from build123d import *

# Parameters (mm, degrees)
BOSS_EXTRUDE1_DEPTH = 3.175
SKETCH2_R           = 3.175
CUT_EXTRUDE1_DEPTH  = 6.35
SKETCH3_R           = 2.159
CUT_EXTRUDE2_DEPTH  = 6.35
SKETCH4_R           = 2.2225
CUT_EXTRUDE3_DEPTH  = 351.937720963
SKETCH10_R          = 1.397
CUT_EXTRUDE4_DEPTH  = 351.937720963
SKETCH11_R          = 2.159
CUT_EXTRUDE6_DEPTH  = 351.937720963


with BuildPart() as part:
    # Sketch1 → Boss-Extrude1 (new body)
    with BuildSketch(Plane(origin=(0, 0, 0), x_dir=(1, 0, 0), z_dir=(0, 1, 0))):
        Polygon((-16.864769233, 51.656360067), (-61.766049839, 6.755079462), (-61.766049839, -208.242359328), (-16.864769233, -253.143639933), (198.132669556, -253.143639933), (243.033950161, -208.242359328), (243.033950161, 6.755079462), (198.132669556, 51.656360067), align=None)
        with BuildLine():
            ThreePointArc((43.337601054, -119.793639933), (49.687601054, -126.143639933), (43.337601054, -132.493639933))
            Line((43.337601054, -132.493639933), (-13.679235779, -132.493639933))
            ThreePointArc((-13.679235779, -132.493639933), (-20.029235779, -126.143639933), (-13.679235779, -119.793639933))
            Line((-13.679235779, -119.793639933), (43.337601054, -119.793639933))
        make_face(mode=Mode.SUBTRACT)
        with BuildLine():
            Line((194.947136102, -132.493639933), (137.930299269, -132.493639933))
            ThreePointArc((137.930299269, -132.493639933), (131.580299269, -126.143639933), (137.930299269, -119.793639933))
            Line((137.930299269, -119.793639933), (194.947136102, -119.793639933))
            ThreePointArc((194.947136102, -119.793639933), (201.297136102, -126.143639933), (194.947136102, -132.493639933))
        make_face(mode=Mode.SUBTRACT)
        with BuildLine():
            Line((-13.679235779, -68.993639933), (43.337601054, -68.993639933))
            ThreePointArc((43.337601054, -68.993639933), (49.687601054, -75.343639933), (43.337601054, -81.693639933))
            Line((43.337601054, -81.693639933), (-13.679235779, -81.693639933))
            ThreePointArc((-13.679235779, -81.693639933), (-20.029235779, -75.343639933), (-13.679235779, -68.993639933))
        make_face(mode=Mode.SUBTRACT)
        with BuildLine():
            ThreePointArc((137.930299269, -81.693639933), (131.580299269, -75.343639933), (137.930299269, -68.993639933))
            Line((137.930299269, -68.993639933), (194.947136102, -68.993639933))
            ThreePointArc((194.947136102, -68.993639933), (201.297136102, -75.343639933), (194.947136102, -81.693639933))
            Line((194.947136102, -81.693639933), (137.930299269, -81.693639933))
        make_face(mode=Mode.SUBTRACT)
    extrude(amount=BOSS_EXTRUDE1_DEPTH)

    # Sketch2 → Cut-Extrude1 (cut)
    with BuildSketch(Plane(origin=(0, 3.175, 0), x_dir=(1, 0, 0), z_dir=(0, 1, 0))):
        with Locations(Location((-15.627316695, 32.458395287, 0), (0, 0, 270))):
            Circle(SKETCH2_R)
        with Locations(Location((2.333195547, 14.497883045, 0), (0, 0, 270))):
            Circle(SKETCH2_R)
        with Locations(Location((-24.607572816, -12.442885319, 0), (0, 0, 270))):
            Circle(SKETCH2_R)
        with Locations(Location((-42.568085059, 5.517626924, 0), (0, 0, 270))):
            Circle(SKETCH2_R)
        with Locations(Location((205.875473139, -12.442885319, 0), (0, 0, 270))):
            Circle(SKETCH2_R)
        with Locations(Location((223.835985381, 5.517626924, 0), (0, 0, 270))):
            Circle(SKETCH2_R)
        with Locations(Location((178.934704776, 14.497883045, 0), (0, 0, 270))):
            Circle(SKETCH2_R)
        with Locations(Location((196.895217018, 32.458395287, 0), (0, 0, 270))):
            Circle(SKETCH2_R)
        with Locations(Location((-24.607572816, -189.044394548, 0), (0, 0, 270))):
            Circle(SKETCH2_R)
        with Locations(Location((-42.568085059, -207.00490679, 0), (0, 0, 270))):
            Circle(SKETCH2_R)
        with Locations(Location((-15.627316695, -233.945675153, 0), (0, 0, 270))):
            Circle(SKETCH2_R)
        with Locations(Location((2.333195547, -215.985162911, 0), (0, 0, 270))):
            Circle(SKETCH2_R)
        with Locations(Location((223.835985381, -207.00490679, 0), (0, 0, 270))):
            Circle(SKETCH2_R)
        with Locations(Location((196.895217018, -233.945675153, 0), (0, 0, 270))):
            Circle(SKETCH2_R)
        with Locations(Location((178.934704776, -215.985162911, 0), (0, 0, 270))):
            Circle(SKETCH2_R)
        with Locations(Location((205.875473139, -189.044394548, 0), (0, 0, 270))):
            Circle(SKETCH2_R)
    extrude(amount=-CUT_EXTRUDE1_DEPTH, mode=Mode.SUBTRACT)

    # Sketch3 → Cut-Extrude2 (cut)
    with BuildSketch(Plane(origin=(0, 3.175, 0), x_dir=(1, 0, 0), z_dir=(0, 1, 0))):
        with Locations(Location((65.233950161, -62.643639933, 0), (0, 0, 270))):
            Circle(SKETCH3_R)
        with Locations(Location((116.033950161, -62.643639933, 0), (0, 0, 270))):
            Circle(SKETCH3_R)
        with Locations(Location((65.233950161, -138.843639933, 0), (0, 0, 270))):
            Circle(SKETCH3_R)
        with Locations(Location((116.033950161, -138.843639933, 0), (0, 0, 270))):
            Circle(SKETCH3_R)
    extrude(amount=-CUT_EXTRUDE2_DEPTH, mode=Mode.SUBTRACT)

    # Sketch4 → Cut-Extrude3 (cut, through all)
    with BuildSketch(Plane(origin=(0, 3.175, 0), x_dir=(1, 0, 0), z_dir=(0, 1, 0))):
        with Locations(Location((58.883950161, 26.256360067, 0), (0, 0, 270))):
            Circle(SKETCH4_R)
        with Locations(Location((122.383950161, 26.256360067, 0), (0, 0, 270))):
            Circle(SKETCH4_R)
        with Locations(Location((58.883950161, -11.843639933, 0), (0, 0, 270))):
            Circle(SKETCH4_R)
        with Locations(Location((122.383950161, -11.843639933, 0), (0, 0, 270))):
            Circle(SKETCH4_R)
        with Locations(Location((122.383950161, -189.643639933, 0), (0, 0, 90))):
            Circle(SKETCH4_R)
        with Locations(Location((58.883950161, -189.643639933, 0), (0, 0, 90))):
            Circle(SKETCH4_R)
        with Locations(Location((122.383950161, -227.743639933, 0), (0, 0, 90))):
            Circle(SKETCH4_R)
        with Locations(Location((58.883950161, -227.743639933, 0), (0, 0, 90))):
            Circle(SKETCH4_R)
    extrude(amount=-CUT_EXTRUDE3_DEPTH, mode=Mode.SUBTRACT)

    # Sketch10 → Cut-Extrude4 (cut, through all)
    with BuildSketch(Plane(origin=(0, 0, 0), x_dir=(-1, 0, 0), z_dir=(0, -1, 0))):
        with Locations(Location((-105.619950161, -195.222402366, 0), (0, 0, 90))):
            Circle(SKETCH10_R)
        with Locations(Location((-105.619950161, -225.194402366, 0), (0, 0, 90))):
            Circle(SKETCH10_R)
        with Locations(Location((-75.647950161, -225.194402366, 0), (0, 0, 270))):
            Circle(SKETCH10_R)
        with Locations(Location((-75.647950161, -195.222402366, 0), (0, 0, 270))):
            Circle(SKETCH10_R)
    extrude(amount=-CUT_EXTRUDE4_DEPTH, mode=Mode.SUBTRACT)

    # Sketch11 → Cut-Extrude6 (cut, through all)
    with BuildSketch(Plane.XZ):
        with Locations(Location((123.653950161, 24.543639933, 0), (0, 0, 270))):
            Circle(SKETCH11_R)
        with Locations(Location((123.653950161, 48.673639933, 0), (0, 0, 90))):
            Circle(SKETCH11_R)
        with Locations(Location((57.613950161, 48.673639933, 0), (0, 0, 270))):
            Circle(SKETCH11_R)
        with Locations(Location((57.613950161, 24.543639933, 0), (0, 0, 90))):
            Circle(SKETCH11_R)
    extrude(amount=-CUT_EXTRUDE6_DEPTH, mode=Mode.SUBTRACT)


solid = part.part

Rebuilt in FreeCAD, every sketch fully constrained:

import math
import FreeCAD as App
import Part
import Sketcher
Q = App.Units.Quantity


def add_polygon(sketch, points):
    """Adds a closed chain of lines whose ends are joined by coincident constraints."""
    first, n = sketch.GeometryCount, len(points)
    for a, b in zip(points, points[1:] + points[:1]):
        sketch.addGeometry(Part.LineSegment(App.Vector(*a, 0), App.Vector(*b, 0)), False)
    for i in range(n):
        sketch.addConstraint(Sketcher.Constraint("Coincident", first + i, 2, first + (i + 1) % n, 1))

doc = App.newDocument("Part")
body = doc.addObject("PartDesign::Body", "Body")

sketch1 = body.newObject("Sketcher::SketchObject", "Sketch")
sketch1.AttachmentSupport = (doc.getObject("XZ_Plane"), [""])
sketch1.MapMode = "FlatFace"
add_polygon(sketch1, [(-17, -52), (-62, -7), (-62, 208), (-17, 253), (198, 253), (243, 208), (243, -7), (198, -52)])
sketch1.addGeometry(Part.LineSegment(App.Vector(-14, 120, 0), App.Vector(43, 120, 0)), False)
sketch1.addGeometry(Part.ArcOfCircle(Part.Circle(App.Vector(43, 126, 0), App.Vector(0, 0, 1), 6), math.radians(-90), math.radians(90)), False)
sketch1.addGeometry(Part.LineSegment(App.Vector(43, 132, 0), App.Vector(-14, 132, 0)), False)
sketch1.addGeometry(Part.ArcOfCircle(Part.Circle(App.Vector(-14, 126, 0), App.Vector(0, 0, 1), 6), math.radians(90), math.radians(270)), False)
sketch1.addGeometry(Part.ArcOfCircle(Part.Circle(App.Vector(195, 126, 0), App.Vector(0, 0, 1), 6), math.radians(-90), math.radians(90)), False)
sketch1.addGeometry(Part.LineSegment(App.Vector(195, 132, 0), App.Vector(138, 132, 0)), False)
sketch1.addGeometry(Part.ArcOfCircle(Part.Circle(App.Vector(138, 126, 0), App.Vector(0, 0, 1), 6), math.radians(90), math.radians(270)), False)
sketch1.addGeometry(Part.LineSegment(App.Vector(138, 120, 0), App.Vector(195, 120, 0)), False)
sketch1.addGeometry(Part.ArcOfCircle(Part.Circle(App.Vector(-14, 75, 0), App.Vector(0, 0, 1), 6), math.radians(90), math.radians(270)), False)
sketch1.addGeometry(Part.LineSegment(App.Vector(-14, 69, 0), App.Vector(43, 69, 0)), False)
sketch1.addGeometry(Part.ArcOfCircle(Part.Circle(App.Vector(43, 75, 0), App.Vector(0, 0, 1), 6), math.radians(-90), math.radians(90)), False)
sketch1.addGeometry(Part.LineSegment(App.Vector(43, 82, 0), App.Vector(-14, 82, 0)), False)
sketch1.addGeometry(Part.LineSegment(App.Vector(195, 82, 0), App.Vector(138, 82, 0)), False)
sketch1.addGeometry(Part.ArcOfCircle(Part.Circle(App.Vector(138, 75, 0), App.Vector(0, 0, 1), 6), math.radians(90), math.radians(270)), False)
sketch1.addGeometry(Part.LineSegment(App.Vector(138, 69, 0), App.Vector(195, 69, 0)), False)
sketch1.addGeometry(Part.ArcOfCircle(Part.Circle(App.Vector(195, 75, 0), App.Vector(0, 0, 1), 6), math.radians(-90), math.radians(90)), False)
sketch1.addConstraint(Sketcher.Constraint("Tangent", 8, 2, 9, 1))
sketch1.addConstraint(Sketcher.Constraint("Tangent", 9, 2, 10, 1))
sketch1.addConstraint(Sketcher.Constraint("Tangent", 10, 2, 11, 1))
sketch1.addConstraint(Sketcher.Constraint("Tangent", 11, 2, 8, 1))
sketch1.addConstraint(Sketcher.Constraint("Tangent", 12, 2, 13, 1))
sketch1.addConstraint(Sketcher.Constraint("Tangent", 13, 2, 14, 1))
sketch1.addConstraint(Sketcher.Constraint("Tangent", 14, 2, 15, 1))
sketch1.addConstraint(Sketcher.Constraint("Tangent", 15, 2, 12, 1))
sketch1.addConstraint(Sketcher.Constraint("Tangent", 16, 2, 17, 1))
sketch1.addConstraint(Sketcher.Constraint("Tangent", 17, 2, 18, 1))
sketch1.addConstraint(Sketcher.Constraint("Tangent", 18, 2, 19, 1))
sketch1.addConstraint(Sketcher.Constraint("Tangent", 19, 2, 16, 1))
sketch1.addConstraint(Sketcher.Constraint("Tangent", 20, 2, 21, 1))
sketch1.addConstraint(Sketcher.Constraint("Tangent", 21, 2, 22, 1))
sketch1.addConstraint(Sketcher.Constraint("Tangent", 22, 2, 23, 1))
sketch1.addConstraint(Sketcher.Constraint("Tangent", 23, 2, 20, 1))
sketch1.addConstraint(Sketcher.Constraint("Vertical", 1))
sketch1.addConstraint(Sketcher.Constraint("Horizontal", 3))
sketch1.addConstraint(Sketcher.Constraint("Vertical", 5))
sketch1.addConstraint(Sketcher.Constraint("Horizontal", 7))
sketch1.addConstraint(Sketcher.Constraint("Horizontal", 8))
sketch1.addConstraint(Sketcher.Constraint("Horizontal", 10))
sketch1.addConstraint(Sketcher.Constraint("Horizontal", 13))
sketch1.addConstraint(Sketcher.Constraint("Horizontal", 15))
sketch1.addConstraint(Sketcher.Constraint("Horizontal", 17))
sketch1.addConstraint(Sketcher.Constraint("Horizontal", 19))
sketch1.addConstraint(Sketcher.Constraint("Horizontal", 20))
sketch1.addConstraint(Sketcher.Constraint("Horizontal", 22))
sketch1.addConstraint(Sketcher.Constraint("Equal", 11, 12))
sketch1.addConstraint(Sketcher.Constraint("Equal", 14, 16))
sketch1.addConstraint(Sketcher.Constraint("Equal", 18, 21))
sketch1.addConstraint(Sketcher.Constraint("Perpendicular", 0, 2))
sketch1.addConstraint(Sketcher.Constraint("Perpendicular", 2, 4))
sketch1.addConstraint(Sketcher.Constraint("Perpendicular", 4, 6))
sketch1.addConstraint(Sketcher.Constraint("Horizontal", 11, 3, 12, 3))
sketch1.addConstraint(Sketcher.Constraint("Horizontal", 18, 3, 21, 3))
sketch1.addConstraint(Sketcher.Constraint("Horizontal", 1, 2, 4, 2))
sketch1.addConstraint(Sketcher.Constraint("Horizontal", 0, 2, 5, 2))
sketch1.addConstraint(Sketcher.Constraint("Vertical", 11, 3, 16, 3))
sketch1.addConstraint(Sketcher.Constraint("Vertical", 9, 3, 18, 3))
sketch1.addConstraint(Sketcher.Constraint("Vertical", 14, 3, 21, 3))
sketch1.addConstraint(Sketcher.Constraint("Vertical", 12, 3, 23, 3))
sketch1.addConstraint(Sketcher.Constraint("Vertical", 3, 2, 6, 2))
sketch1.addConstraint(Sketcher.Constraint("Vertical", 2, 2, 7, 2))
sketch1.addConstraint(Sketcher.Constraint("Equal", 10, 13))
sketch1.addConstraint(Sketcher.Constraint("Equal", 7, 1))
sketch1.addConstraint(Sketcher.Constraint("Radius", 9, Q("0.25 in")))
sketch1.addConstraint(Sketcher.Constraint("DistanceY", 16, 3, 11, 3, Q("2 in")))
sketch1.addConstraint(Sketcher.Constraint("DistanceY", 11, 3, 2, 2, Q("5 in")))
sketch1.addConstraint(Sketcher.Constraint("DistanceY", 6, 2, 23, 3, Q("5 in")))
sketch1.addConstraint(Sketcher.Constraint("Distance", 0, Q("2.5 in")))
sketch1.addConstraint(Sketcher.Constraint("DistanceX", -1, 1, 9, 3, 43.337601))
sketch1.addConstraint(Sketcher.Constraint("DistanceX", -1, 1, 14, 3, 137.930299))
sketch1.addConstraint(Sketcher.Constraint("DistanceX", 8, 1, 8, 2, 57.016837))
sketch1.addConstraint(Sketcher.Constraint("DistanceY", -1, 1, 9, 3, 126.14364))
sketch1.addConstraint(Sketcher.Constraint("DistanceX", 0, 2, -1, 1, 61.76605))
pad1 = body.newObject("PartDesign::Pad", "Pad")
pad1.Profile = sketch1
pad1.Length = Q("0.125 in")
pad1.Reversed = True

sketch2 = body.newObject("Sketcher::SketchObject", "Sketch001")
sketch2.AttachmentSupport = (doc.getObject("XZ_Plane"), [""])
sketch2.MapMode = "FlatFace"
sketch2.AttachmentOffset = App.Placement(App.Vector(0, 0, -0.125 * 25.4), App.Rotation())
sketch2.addGeometry(Part.Circle(App.Vector(-15.6, -32.5, 0), App.Vector(0, 0, 1), 3.2), False)
sketch2.addGeometry(Part.Circle(App.Vector(2.3, -14.5, 0), App.Vector(0, 0, 1), 3.2), False)
sketch2.addGeometry(Part.Circle(App.Vector(-24.6, 12.4, 0), App.Vector(0, 0, 1), 3.2), False)
sketch2.addGeometry(Part.Circle(App.Vector(-42.6, -5.5, 0), App.Vector(0, 0, 1), 3.2), False)
sketch2.addGeometry(Part.Circle(App.Vector(205.9, 12.4, 0), App.Vector(0, 0, 1), 3.2), False)
sketch2.addGeometry(Part.Circle(App.Vector(223.8, -5.5, 0), App.Vector(0, 0, 1), 3.2), False)
sketch2.addGeometry(Part.Circle(App.Vector(178.9, -14.5, 0), App.Vector(0, 0, 1), 3.2), False)
sketch2.addGeometry(Part.Circle(App.Vector(196.9, -32.5, 0), App.Vector(0, 0, 1), 3.2), False)
sketch2.addGeometry(Part.Circle(App.Vector(-24.6, 189, 0), App.Vector(0, 0, 1), 3.2), False)
sketch2.addGeometry(Part.Circle(App.Vector(-42.6, 207, 0), App.Vector(0, 0, 1), 3.2), False)
sketch2.addGeometry(Part.Circle(App.Vector(-15.6, 233.9, 0), App.Vector(0, 0, 1), 3.2), False)
sketch2.addGeometry(Part.Circle(App.Vector(2.3, 216, 0), App.Vector(0, 0, 1), 3.2), False)
sketch2.addGeometry(Part.Circle(App.Vector(223.8, 207, 0), App.Vector(0, 0, 1), 3.2), False)
sketch2.addGeometry(Part.Circle(App.Vector(196.9, 233.9, 0), App.Vector(0, 0, 1), 3.2), False)
sketch2.addGeometry(Part.Circle(App.Vector(178.9, 216, 0), App.Vector(0, 0, 1), 3.2), False)
sketch2.addGeometry(Part.Circle(App.Vector(205.9, 189, 0), App.Vector(0, 0, 1), 3.2), False)
sketch2.addConstraint(Sketcher.Constraint("Equal", 0, 1))
sketch2.addConstraint(Sketcher.Constraint("Equal", 1, 2))
sketch2.addConstraint(Sketcher.Constraint("Equal", 2, 3))
sketch2.addConstraint(Sketcher.Constraint("Equal", 3, 4))
sketch2.addConstraint(Sketcher.Constraint("Equal", 4, 5))
sketch2.addConstraint(Sketcher.Constraint("Equal", 5, 6))
sketch2.addConstraint(Sketcher.Constraint("Equal", 6, 7))
sketch2.addConstraint(Sketcher.Constraint("Equal", 7, 8))
sketch2.addConstraint(Sketcher.Constraint("Equal", 8, 9))
sketch2.addConstraint(Sketcher.Constraint("Equal", 9, 10))
sketch2.addConstraint(Sketcher.Constraint("Equal", 10, 11))
sketch2.addConstraint(Sketcher.Constraint("Equal", 11, 12))
sketch2.addConstraint(Sketcher.Constraint("Equal", 12, 13))
sketch2.addConstraint(Sketcher.Constraint("Equal", 13, 14))
sketch2.addConstraint(Sketcher.Constraint("Equal", 14, 15))
sketch2.addConstraint(Sketcher.Constraint("Horizontal", 2, 3, 4, 3))
sketch2.addConstraint(Sketcher.Constraint("Horizontal", 3, 3, 5, 3))
sketch2.addConstraint(Sketcher.Constraint("Horizontal", 1, 3, 6, 3))
sketch2.addConstraint(Sketcher.Constraint("Horizontal", 0, 3, 7, 3))
sketch2.addConstraint(Sketcher.Constraint("Horizontal", 9, 3, 12, 3))
sketch2.addConstraint(Sketcher.Constraint("Horizontal", 10, 3, 13, 3))
sketch2.addConstraint(Sketcher.Constraint("Horizontal", 11, 3, 14, 3))
sketch2.addConstraint(Sketcher.Constraint("Horizontal", 8, 3, 15, 3))
sketch2.addConstraint(Sketcher.Constraint("Vertical", 2, 3, 8, 3))
sketch2.addConstraint(Sketcher.Constraint("Vertical", 3, 3, 9, 3))
sketch2.addConstraint(Sketcher.Constraint("Vertical", 0, 3, 10, 3))
sketch2.addConstraint(Sketcher.Constraint("Vertical", 1, 3, 11, 3))
sketch2.addConstraint(Sketcher.Constraint("Vertical", 5, 3, 12, 3))
sketch2.addConstraint(Sketcher.Constraint("Vertical", 7, 3, 13, 3))
sketch2.addConstraint(Sketcher.Constraint("Vertical", 6, 3, 14, 3))
sketch2.addConstraint(Sketcher.Constraint("Vertical", 4, 3, 15, 3))
sketch2.addConstraint(Sketcher.Constraint("Diameter", 0, Q("0.25 in")))
sketch2.addConstraint(Sketcher.Constraint("DistanceX", 2, 3, 1, 3, 26.940768))
sketch2.addConstraint(Sketcher.Constraint("DistanceY", 1, 3, 2, 3, 26.940768))
sketch2.addConstraint(Sketcher.Constraint("DistanceY", 0, 3, 2, 3, 44.901281))
sketch2.addConstraint(Sketcher.Constraint("DistanceX", 3, 3, 0, 3, 26.940768))
sketch2.addConstraint(Sketcher.Constraint("DistanceY", 0, 3, 3, 3, 26.940768))
sketch2.addConstraint(Sketcher.Constraint("DistanceX", 3, 3, 1, 3, 44.901281))
sketch2.addConstraint(Sketcher.Constraint("DistanceX", 0, 3, 4, 3, 221.50279))
sketch2.addConstraint(Sketcher.Constraint("DistanceX", 1, 3, 5, 3, 221.50279))
sketch2.addConstraint(Sketcher.Constraint("DistanceX", 6, 3, 4, 3, 26.940768))
sketch2.addConstraint(Sketcher.Constraint("DistanceX", 7, 3, 5, 3, 26.940768))
sketch2.addConstraint(Sketcher.Constraint("DistanceY", 2, 3, 8, 3, 176.601509))
sketch2.addConstraint(Sketcher.Constraint("DistanceY", 2, 3, 9, 3, 194.562021))
sketch2.addConstraint(Sketcher.Constraint("DistanceY", 9, 3, 10, 3, 26.940768))
sketch2.addConstraint(Sketcher.Constraint("DistanceY", 8, 3, 11, 3, 26.940768))
sketch2.addConstraint(Sketcher.Constraint("DistanceX", 0, 3, -1, 1, 15.627317))
sketch2.addConstraint(Sketcher.Constraint("DistanceY", 0, 3, -1, 1, 32.458395))
pocket1 = body.newObject("PartDesign::Pocket", "Pocket")
pocket1.Profile = sketch2
pocket1.Length = Q("0.25 in")
pocket1.Reversed = True

sketch3 = body.newObject("Sketcher::SketchObject", "Sketch002")
sketch3.AttachmentSupport = (doc.getObject("XZ_Plane"), [""])
sketch3.MapMode = "FlatFace"
sketch3.AttachmentOffset = App.Placement(App.Vector(0, 0, -0.125 * 25.4), App.Rotation())
sketch3.addGeometry(Part.Circle(App.Vector(65.2, 62.6, 0), App.Vector(0, 0, 1), 2.2), False)
sketch3.addGeometry(Part.Circle(App.Vector(116, 62.6, 0), App.Vector(0, 0, 1), 2.2), False)
sketch3.addGeometry(Part.Circle(App.Vector(65.2, 138.8, 0), App.Vector(0, 0, 1), 2.2), False)
sketch3.addGeometry(Part.Circle(App.Vector(116, 138.8, 0), App.Vector(0, 0, 1), 2.2), False)
sketch3.addConstraint(Sketcher.Constraint("Equal", 0, 1))
sketch3.addConstraint(Sketcher.Constraint("Equal", 1, 2))
sketch3.addConstraint(Sketcher.Constraint("Equal", 2, 3))
sketch3.addConstraint(Sketcher.Constraint("Horizontal", 0, 3, 1, 3))
sketch3.addConstraint(Sketcher.Constraint("Horizontal", 2, 3, 3, 3))
sketch3.addConstraint(Sketcher.Constraint("Vertical", 0, 3, 2, 3))
sketch3.addConstraint(Sketcher.Constraint("Vertical", 1, 3, 3, 3))
sketch3.addConstraint(Sketcher.Constraint("Diameter", 0, Q("0.17 in")))
sketch3.addConstraint(Sketcher.Constraint("DistanceX", 0, 3, 1, 3, Q("2 in")))
sketch3.addConstraint(Sketcher.Constraint("DistanceY", 0, 3, 2, 3, Q("3 in")))
sketch3.addConstraint(Sketcher.Constraint("DistanceX", -1, 1, 0, 3, 65.23395))
sketch3.addConstraint(Sketcher.Constraint("DistanceY", -1, 1, 0, 3, 62.64364))
pocket2 = body.newObject("PartDesign::Pocket", "Pocket001")
pocket2.Profile = sketch3
pocket2.Length = Q("0.25 in")
pocket2.Reversed = True

sketch4 = body.newObject("Sketcher::SketchObject", "Sketch003")
sketch4.AttachmentSupport = (doc.getObject("XZ_Plane"), [""])
sketch4.MapMode = "FlatFace"
sketch4.AttachmentOffset = App.Placement(App.Vector(0, 0, -0.125 * 25.4), App.Rotation())
sketch4.addGeometry(Part.Circle(App.Vector(58.9, -26.3, 0), App.Vector(0, 0, 1), 2.2), False)
sketch4.addGeometry(Part.Circle(App.Vector(122.4, -26.3, 0), App.Vector(0, 0, 1), 2.2), False)
sketch4.addGeometry(Part.Circle(App.Vector(58.9, 11.8, 0), App.Vector(0, 0, 1), 2.2), False)
sketch4.addGeometry(Part.Circle(App.Vector(122.4, 11.8, 0), App.Vector(0, 0, 1), 2.2), False)
sketch4.addGeometry(Part.Circle(App.Vector(122.4, 189.6, 0), App.Vector(0, 0, 1), 2.2), False)
sketch4.addGeometry(Part.Circle(App.Vector(58.9, 189.6, 0), App.Vector(0, 0, 1), 2.2), False)
sketch4.addGeometry(Part.Circle(App.Vector(122.4, 227.7, 0), App.Vector(0, 0, 1), 2.2), False)
sketch4.addGeometry(Part.Circle(App.Vector(58.9, 227.7, 0), App.Vector(0, 0, 1), 2.2), False)
sketch4.addConstraint(Sketcher.Constraint("Equal", 0, 1))
sketch4.addConstraint(Sketcher.Constraint("Equal", 1, 2))
sketch4.addConstraint(Sketcher.Constraint("Equal", 2, 3))
sketch4.addConstraint(Sketcher.Constraint("Equal", 3, 4))
sketch4.addConstraint(Sketcher.Constraint("Equal", 4, 5))
sketch4.addConstraint(Sketcher.Constraint("Equal", 5, 6))
sketch4.addConstraint(Sketcher.Constraint("Equal", 6, 7))
sketch4.addConstraint(Sketcher.Constraint("Horizontal", 0, 3, 1, 3))
sketch4.addConstraint(Sketcher.Constraint("Horizontal", 2, 3, 3, 3))
sketch4.addConstraint(Sketcher.Constraint("Horizontal", 4, 3, 5, 3))
sketch4.addConstraint(Sketcher.Constraint("Horizontal", 6, 3, 7, 3))
sketch4.addConstraint(Sketcher.Constraint("Vertical", 0, 3, 2, 3))
sketch4.addConstraint(Sketcher.Constraint("Vertical", 1, 3, 3, 3))
sketch4.addConstraint(Sketcher.Constraint("Vertical", 3, 3, 4, 3))
sketch4.addConstraint(Sketcher.Constraint("Vertical", 2, 3, 5, 3))
sketch4.addConstraint(Sketcher.Constraint("Vertical", 4, 3, 6, 3))
sketch4.addConstraint(Sketcher.Constraint("Vertical", 5, 3, 7, 3))
sketch4.addConstraint(Sketcher.Constraint("Diameter", 0, Q("0.175 in")))
sketch4.addConstraint(Sketcher.Constraint("DistanceY", 3, 3, 4, 3, Q("7 in")))
sketch4.addConstraint(Sketcher.Constraint("DistanceY", 1, 3, 6, 3, Q("10 in")))
sketch4.addConstraint(Sketcher.Constraint("DistanceX", 0, 3, 1, 3, Q("2.5 in")))
sketch4.addConstraint(Sketcher.Constraint("DistanceY", 0, 3, 2, 3, Q("1.5 in")))
sketch4.addConstraint(Sketcher.Constraint("DistanceX", -1, 1, 0, 3, 58.88395))
sketch4.addConstraint(Sketcher.Constraint("DistanceY", 0, 3, -1, 1, 26.25636))
pocket3 = body.newObject("PartDesign::Pocket", "Pocket002")
pocket3.Profile = sketch4
pocket3.Type = "ThroughAll"
pocket3.Reversed = True

sketch5 = body.newObject("Sketcher::SketchObject", "Sketch004")
sketch5.AttachmentSupport = (doc.getObject("XZ_Plane"), [""])
sketch5.MapMode = "FlatFace"
sketch5.addGeometry(Part.Circle(App.Vector(105.6, 195.2, 0), App.Vector(0, 0, 1), 1.4), False)
sketch5.addGeometry(Part.Circle(App.Vector(105.6, 225.2, 0), App.Vector(0, 0, 1), 1.4), False)
sketch5.addGeometry(Part.Circle(App.Vector(75.6, 225.2, 0), App.Vector(0, 0, 1), 1.4), False)
sketch5.addGeometry(Part.Circle(App.Vector(75.6, 195.2, 0), App.Vector(0, 0, 1), 1.4), False)
sketch5.addConstraint(Sketcher.Constraint("Equal", 0, 1))
sketch5.addConstraint(Sketcher.Constraint("Equal", 1, 2))
sketch5.addConstraint(Sketcher.Constraint("Equal", 2, 3))
sketch5.addConstraint(Sketcher.Constraint("Horizontal", 1, 3, 2, 3))
sketch5.addConstraint(Sketcher.Constraint("Horizontal", 0, 3, 3, 3))
sketch5.addConstraint(Sketcher.Constraint("Vertical", 0, 3, 1, 3))
sketch5.addConstraint(Sketcher.Constraint("Vertical", 2, 3, 3, 3))
sketch5.addConstraint(Sketcher.Constraint("Diameter", 0, Q("0.11 in")))
sketch5.addConstraint(Sketcher.Constraint("DistanceY", 0, 3, 1, 3, Q("1.18 in")))
sketch5.addConstraint(Sketcher.Constraint("DistanceX", 2, 3, 1, 3, Q("1.18 in")))
sketch5.addConstraint(Sketcher.Constraint("DistanceX", -1, 1, 0, 3, 105.61995))
sketch5.addConstraint(Sketcher.Constraint("DistanceY", -1, 1, 0, 3, 195.222402))
pocket4 = body.newObject("PartDesign::Pocket", "Pocket003")
pocket4.Profile = sketch5
pocket4.Type = "ThroughAll"

sketch6 = body.newObject("Sketcher::SketchObject", "Sketch005")
sketch6.AttachmentSupport = (doc.getObject("XZ_Plane"), [""])
sketch6.MapMode = "FlatFace"
sketch6.addGeometry(Part.Circle(App.Vector(123.7, 24.5, 0), App.Vector(0, 0, 1), 2.2), False)
sketch6.addGeometry(Part.Circle(App.Vector(123.7, 48.7, 0), App.Vector(0, 0, 1), 2.2), False)
sketch6.addGeometry(Part.Circle(App.Vector(57.6, 48.7, 0), App.Vector(0, 0, 1), 2.2), False)
sketch6.addGeometry(Part.Circle(App.Vector(57.6, 24.5, 0), App.Vector(0, 0, 1), 2.2), False)
sketch6.addConstraint(Sketcher.Constraint("Equal", 0, 1))
sketch6.addConstraint(Sketcher.Constraint("Equal", 1, 2))
sketch6.addConstraint(Sketcher.Constraint("Equal", 2, 3))
sketch6.addConstraint(Sketcher.Constraint("Horizontal", 1, 3, 2, 3))
sketch6.addConstraint(Sketcher.Constraint("Horizontal", 0, 3, 3, 3))
sketch6.addConstraint(Sketcher.Constraint("Vertical", 0, 3, 1, 3))
sketch6.addConstraint(Sketcher.Constraint("Vertical", 2, 3, 3, 3))
sketch6.addConstraint(Sketcher.Constraint("Diameter", 0, Q("0.17 in")))
sketch6.addConstraint(Sketcher.Constraint("DistanceX", 2, 3, 1, 3, Q("2.6 in")))
sketch6.addConstraint(Sketcher.Constraint("DistanceY", 0, 3, 1, 3, Q("0.95 in")))
sketch6.addConstraint(Sketcher.Constraint("DistanceX", -1, 1, 0, 3, 123.65395))
sketch6.addConstraint(Sketcher.Constraint("DistanceY", -1, 1, 0, 3, 24.54364))
pocket5 = body.newObject("PartDesign::Pocket", "Pocket004")
pocket5.Profile = sketch6
pocket5.Type = "ThroughAll"

doc.recompute()
